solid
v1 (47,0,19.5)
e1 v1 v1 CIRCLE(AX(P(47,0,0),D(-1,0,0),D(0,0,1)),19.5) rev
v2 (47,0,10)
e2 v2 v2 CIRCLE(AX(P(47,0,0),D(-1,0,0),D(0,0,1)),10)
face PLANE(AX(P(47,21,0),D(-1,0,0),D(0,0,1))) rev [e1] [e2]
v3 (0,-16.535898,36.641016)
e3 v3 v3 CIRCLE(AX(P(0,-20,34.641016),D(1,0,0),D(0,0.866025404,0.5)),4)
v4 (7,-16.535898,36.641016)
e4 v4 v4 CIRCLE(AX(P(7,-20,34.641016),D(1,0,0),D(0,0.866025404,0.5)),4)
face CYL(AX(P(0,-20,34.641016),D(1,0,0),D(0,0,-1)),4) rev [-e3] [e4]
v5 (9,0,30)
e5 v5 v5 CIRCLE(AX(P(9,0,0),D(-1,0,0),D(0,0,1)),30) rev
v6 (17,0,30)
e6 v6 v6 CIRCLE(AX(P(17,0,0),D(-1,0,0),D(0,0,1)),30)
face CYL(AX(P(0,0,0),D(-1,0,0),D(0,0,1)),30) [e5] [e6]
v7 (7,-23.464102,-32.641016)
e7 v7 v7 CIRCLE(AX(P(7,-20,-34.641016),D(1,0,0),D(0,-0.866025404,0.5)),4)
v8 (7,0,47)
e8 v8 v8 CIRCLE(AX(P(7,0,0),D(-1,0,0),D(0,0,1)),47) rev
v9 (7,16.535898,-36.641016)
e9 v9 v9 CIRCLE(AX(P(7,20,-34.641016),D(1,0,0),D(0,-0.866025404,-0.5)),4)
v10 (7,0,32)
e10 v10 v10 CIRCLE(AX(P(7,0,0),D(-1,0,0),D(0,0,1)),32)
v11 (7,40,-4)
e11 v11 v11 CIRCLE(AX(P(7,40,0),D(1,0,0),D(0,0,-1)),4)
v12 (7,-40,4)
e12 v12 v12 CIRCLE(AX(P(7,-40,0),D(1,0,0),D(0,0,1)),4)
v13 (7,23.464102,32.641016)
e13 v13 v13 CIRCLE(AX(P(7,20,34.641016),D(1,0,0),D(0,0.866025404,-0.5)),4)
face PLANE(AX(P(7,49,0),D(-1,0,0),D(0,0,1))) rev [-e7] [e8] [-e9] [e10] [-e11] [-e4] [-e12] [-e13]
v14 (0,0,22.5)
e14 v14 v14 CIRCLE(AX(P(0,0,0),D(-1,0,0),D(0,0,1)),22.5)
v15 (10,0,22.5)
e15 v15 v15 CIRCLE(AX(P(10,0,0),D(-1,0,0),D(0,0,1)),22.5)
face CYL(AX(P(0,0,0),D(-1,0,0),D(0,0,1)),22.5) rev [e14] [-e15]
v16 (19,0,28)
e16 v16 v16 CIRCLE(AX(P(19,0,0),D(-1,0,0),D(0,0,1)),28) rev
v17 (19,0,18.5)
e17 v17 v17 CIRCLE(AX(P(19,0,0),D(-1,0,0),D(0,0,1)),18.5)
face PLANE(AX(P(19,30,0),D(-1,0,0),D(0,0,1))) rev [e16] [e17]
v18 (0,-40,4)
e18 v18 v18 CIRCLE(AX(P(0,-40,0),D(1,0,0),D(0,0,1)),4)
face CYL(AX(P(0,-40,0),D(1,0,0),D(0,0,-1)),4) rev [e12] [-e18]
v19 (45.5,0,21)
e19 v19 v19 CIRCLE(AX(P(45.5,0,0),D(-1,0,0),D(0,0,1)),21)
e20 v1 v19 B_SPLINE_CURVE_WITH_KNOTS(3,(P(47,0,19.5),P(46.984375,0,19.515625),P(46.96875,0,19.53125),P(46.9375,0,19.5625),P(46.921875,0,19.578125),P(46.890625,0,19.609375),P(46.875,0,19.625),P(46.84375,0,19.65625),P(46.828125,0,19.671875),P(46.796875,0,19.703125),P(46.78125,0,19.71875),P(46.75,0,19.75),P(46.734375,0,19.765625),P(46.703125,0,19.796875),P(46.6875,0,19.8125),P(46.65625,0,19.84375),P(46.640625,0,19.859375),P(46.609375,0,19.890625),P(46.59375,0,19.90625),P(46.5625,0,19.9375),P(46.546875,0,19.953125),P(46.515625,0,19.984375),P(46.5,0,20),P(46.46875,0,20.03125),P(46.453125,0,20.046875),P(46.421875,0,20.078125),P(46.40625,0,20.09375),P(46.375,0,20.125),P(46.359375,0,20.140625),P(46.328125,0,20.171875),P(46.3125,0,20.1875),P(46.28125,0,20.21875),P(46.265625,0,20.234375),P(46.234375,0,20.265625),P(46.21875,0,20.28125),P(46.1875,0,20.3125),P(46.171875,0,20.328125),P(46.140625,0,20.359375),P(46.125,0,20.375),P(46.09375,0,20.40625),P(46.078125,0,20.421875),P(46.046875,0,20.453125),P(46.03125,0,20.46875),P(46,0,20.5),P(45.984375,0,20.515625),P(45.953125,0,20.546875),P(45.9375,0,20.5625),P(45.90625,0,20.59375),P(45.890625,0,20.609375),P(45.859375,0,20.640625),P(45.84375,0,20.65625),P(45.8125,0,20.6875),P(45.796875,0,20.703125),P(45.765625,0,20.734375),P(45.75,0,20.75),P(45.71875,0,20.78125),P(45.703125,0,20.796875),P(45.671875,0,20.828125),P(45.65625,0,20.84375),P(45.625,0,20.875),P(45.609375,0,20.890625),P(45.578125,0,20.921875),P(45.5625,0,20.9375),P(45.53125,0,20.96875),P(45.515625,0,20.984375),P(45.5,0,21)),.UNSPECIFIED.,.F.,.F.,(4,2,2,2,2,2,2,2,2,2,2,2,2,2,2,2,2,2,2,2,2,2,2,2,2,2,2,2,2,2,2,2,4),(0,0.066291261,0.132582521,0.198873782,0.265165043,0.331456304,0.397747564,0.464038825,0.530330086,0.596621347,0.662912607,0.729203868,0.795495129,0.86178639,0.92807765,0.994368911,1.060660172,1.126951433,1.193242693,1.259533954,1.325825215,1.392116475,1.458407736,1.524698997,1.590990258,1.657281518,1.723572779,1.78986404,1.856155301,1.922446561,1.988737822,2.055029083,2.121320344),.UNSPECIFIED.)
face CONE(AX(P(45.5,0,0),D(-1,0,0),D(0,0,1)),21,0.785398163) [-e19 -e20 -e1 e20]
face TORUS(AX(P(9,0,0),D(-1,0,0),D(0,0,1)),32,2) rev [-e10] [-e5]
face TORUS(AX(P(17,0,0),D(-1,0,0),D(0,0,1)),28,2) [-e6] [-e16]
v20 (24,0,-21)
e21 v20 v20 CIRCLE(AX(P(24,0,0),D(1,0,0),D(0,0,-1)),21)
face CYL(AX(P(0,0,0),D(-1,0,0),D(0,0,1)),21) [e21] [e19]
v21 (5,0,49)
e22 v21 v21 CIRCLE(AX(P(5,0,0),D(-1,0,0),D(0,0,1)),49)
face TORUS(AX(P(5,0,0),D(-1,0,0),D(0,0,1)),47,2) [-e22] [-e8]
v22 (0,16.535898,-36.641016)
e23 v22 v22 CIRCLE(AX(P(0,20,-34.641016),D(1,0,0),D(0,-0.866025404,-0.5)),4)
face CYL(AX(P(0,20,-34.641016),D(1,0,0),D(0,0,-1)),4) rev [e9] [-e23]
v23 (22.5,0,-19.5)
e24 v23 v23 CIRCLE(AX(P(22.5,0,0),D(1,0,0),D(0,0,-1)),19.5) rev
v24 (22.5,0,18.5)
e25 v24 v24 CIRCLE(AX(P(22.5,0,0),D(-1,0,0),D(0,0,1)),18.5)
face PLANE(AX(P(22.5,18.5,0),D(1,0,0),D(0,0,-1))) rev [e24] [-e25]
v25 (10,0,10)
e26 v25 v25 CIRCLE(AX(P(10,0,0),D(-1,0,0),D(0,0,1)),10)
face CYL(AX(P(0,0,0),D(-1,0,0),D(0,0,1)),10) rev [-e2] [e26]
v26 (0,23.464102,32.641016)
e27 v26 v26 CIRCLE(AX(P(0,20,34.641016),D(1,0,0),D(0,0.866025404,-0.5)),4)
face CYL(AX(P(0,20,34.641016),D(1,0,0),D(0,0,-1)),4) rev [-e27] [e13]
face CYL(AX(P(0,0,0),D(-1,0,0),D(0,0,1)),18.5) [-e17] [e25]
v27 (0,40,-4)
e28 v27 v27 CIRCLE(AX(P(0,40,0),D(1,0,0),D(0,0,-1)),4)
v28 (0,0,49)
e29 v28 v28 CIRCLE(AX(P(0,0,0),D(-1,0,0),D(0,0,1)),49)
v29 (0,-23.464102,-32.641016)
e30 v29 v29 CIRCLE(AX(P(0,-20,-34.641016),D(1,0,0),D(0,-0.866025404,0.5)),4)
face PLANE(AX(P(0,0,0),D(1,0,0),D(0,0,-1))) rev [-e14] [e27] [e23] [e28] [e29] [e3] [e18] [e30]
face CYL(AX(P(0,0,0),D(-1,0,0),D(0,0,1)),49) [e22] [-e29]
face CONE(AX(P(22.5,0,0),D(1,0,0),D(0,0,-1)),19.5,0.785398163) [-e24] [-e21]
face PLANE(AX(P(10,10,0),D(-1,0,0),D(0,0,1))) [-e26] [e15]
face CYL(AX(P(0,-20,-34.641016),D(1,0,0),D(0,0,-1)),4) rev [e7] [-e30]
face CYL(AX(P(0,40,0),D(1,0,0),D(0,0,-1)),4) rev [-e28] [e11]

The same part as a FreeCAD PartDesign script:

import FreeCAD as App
import Part
import Sketcher
from FreeCAD import Vector
Q = App.Units.Quantity


def edges_at(feature, points):
    """Names of the edges that pass closest to the given points."""
    edges = feature.Shape.Edges
    near = lambda p: min(range(len(edges)), key=lambda i: edges[i].distToShape(Part.Vertex(*p))[0])
    return sorted({f"Edge{near(p) + 1}" for p in points})


def add_polygon(sketch, points):
    """Adds a closed chain of lines whose ends are joined by coincident constraints."""
    first, n = sketch.GeometryCount, len(points)
    for a, b in zip(points, points[1:] + points[:1]):
        sketch.addGeometry(Part.LineSegment(App.Vector(*a, 0), App.Vector(*b, 0)), False)
    for i in range(n):
        sketch.addConstraint(Sketcher.Constraint("Coincident", first + i, 2, first + (i + 1) % n, 1))

doc = App.newDocument("Part")
body = doc.addObject("PartDesign::Body", "Body")

sketch1 = doc.addObject("Sketcher::SketchObject", "Sketch")
body.addObject(sketch1)
sketch1.AttachmentSupport = (doc.XY_Plane, [""])
sketch1.MapMode = "FlatFace"
add_polygon(sketch1, [(0, 49), (0, 0), (47, 0), (47, 21), (22.5, 21), (22.5, 18.5), (19, 18.5), (19, 30), (7, 30), (7, 49)])
sketch1.addConstraint(Sketcher.Constraint("Vertical", 0))
sketch1.addConstraint(Sketcher.Constraint("Horizontal", 1))
sketch1.addConstraint(Sketcher.Constraint("Vertical", 2))
sketch1.addConstraint(Sketcher.Constraint("Horizontal", 3))
sketch1.addConstraint(Sketcher.Constraint("Vertical", 4))
sketch1.addConstraint(Sketcher.Constraint("Horizontal", 5))
sketch1.addConstraint(Sketcher.Constraint("Vertical", 6))
sketch1.addConstraint(Sketcher.Constraint("Horizontal", 7))
sketch1.addConstraint(Sketcher.Constraint("Vertical", 8))
sketch1.addConstraint(Sketcher.Constraint("Horizontal", 9))
sketch1.addConstraint(Sketcher.Constraint("Coincident", 0, 2, -1, 1))
sketch1.addConstraint(Sketcher.Constraint("DistanceX", 1, 1, 1, 2, Q("47 mm")))
sketch1.addConstraint(Sketcher.Constraint("DistanceX", 7, 2, 7, 1, Q("12 mm")))
sketch1.addConstraint(Sketcher.Constraint("DistanceX", 9, 2, 9, 1, Q("7 mm")))
sketch1.addConstraint(Sketcher.Constraint("DistanceY", 0, 2, 0, 1, Q("49 mm")))
sketch1.addConstraint(Sketcher.Constraint("DistanceY", 2, 1, 2, 2, Q("21 mm")))
sketch1.addConstraint(Sketcher.Constraint("DistanceY", 8, 1, 8, 2, Q("19 mm")))
sketch1.addConstraint(Sketcher.Constraint("DistanceX", 3, 2, 3, 1, Q("24.5 mm")))
sketch1.addConstraint(Sketcher.Constraint("DistanceY", 4, 2, 4, 1, Q("2.5 mm")))
revolution = doc.addObject("PartDesign::Revolution", "Revolution")
body.addObject(revolution)
revolution.Profile = sketch1
revolution.ReferenceAxis = (sketch1, ["H_Axis"])
revolution.Angle = 360

sketch2 = doc.addObject("Sketcher::SketchObject", "Sketch001")
body.addObject(sketch2)
sketch2.AttachmentSupport = (doc.XY_Plane, [""])
sketch2.MapMode = "FlatFace"
add_polygon(sketch2, [(47, 0), (47, 10), (10, 10), (10, 22), (0, 22), (0, 0)])
sketch2.addConstraint(Sketcher.Constraint("Vertical", 0))
sketch2.addConstraint(Sketcher.Constraint("Horizontal", 1))
sketch2.addConstraint(Sketcher.Constraint("Vertical", 2))
sketch2.addConstraint(Sketcher.Constraint("Horizontal", 3))
sketch2.addConstraint(Sketcher.Constraint("Vertical", 4))
sketch2.addConstraint(Sketcher.Constraint("Horizontal", 5))
sketch2.addConstraint(Sketcher.Constraint("Coincident", 4, 2, -1, 1))
sketch2.addConstraint(Sketcher.Constraint("Equal", 3, 0))
sketch2.addConstraint(Sketcher.Constraint("DistanceX", 1, 2, 1, 1, Q("37 mm")))
sketch2.addConstraint(Sketcher.Constraint("DistanceX", 3, 2, 3, 1, Q("10 mm")))
sketch2.addConstraint(Sketcher.Constraint("DistanceY", 2, 1, 2, 2, Q("12.5 mm")))
groove = doc.addObject("PartDesign::Groove", "Groove")
body.addObject(groove)
groove.Profile = sketch2
groove.ReferenceAxis = (sketch2, ["H_Axis"])
groove.Angle = 360
doc.recompute()

chamfer = doc.addObject("PartDesign::Chamfer", "Chamfer")
body.addObject(chamfer)
chamfer.Base = (groove, edges_at(groove, [(47, 0, -21), (22.5, 0, -21)]))
chamfer.Size = 1.5

sketch3 = doc.addObject("Sketcher::SketchObject", "Sketch002")
body.addObject(sketch3)
sketch3.AttachmentSupport = (doc.YZ_Plane, [""])
sketch3.MapMode = "FlatFace"
sketch3.AttachmentOffset = App.Placement(Vector(0, 0, 7), App.Rotation())
sketch3.addGeometry(Part.Circle(Vector(40, 0, 0), Vector(0, 0, 1), 4), False)
sketch3.addConstraint(Sketcher.Constraint("PointOnObject", 0, 3, -1))
sketch3.addConstraint(Sketcher.Constraint("Diameter", 0, Q("8 mm")))
sketch3.addConstraint(Sketcher.Constraint("DistanceX", -1, 1, 0, 3, Q("40 mm")))
pocket1 = doc.addObject("PartDesign::Pocket", "Pocket")
body.addObject(pocket1)
pocket1.Profile = sketch3
pocket1.Type = "ThroughAll"
doc.recompute()

polarpattern = doc.addObject("PartDesign::PolarPattern", "PolarPattern")
body.addObject(polarpattern)
polarpattern.Originals = [pocket1]
polarpattern.Axis = (doc.X_Axis, [""])
polarpattern.Angle = 360
polarpattern.Occurrences = 6
body.Tip = polarpattern
doc.recompute()

fillet = doc.addObject("PartDesign::Fillet", "Fillet")
body.addObject(fillet)
fillet.Base = (polarpattern, edges_at(polarpattern, [(7, 0, -49), (19, 0, -30), (7, 0, -30)]))
fillet.Radius = 2

doc.recompute()
